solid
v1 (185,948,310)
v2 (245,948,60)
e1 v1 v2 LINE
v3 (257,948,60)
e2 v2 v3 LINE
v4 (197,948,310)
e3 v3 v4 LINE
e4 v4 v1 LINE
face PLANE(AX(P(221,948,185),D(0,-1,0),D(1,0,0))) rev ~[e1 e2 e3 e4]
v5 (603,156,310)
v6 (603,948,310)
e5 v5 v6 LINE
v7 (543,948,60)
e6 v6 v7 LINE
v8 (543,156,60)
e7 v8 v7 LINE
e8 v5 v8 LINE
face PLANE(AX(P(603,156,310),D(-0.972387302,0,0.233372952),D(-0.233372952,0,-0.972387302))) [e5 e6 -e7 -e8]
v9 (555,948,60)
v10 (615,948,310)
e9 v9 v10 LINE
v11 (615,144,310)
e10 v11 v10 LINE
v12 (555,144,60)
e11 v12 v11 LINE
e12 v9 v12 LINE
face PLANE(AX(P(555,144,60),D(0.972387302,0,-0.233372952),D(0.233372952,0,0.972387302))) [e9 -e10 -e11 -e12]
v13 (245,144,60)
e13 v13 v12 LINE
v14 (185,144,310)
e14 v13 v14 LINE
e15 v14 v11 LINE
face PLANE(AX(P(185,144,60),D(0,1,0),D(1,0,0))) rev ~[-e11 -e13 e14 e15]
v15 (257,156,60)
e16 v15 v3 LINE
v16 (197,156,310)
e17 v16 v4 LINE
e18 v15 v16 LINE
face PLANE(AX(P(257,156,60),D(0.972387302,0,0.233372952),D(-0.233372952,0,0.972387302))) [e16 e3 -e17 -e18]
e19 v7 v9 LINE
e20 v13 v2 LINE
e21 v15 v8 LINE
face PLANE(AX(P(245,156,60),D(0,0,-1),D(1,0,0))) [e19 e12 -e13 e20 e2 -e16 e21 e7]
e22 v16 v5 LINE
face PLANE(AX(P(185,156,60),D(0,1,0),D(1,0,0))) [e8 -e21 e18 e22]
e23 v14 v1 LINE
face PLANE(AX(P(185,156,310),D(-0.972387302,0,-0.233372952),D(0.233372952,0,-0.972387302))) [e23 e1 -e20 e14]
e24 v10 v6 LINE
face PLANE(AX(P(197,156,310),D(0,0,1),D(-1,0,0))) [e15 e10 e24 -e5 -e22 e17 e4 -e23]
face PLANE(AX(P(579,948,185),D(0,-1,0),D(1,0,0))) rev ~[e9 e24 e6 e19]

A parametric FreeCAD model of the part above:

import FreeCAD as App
import Part
import Sketcher
from FreeCAD import Vector


def add_polygon(sketch, points):
    """Adds a closed chain of lines whose ends are joined by coincident constraints."""
    first, n = sketch.GeometryCount, len(points)
    for a, b in zip(points, points[1:] + points[:1]):
        sketch.addGeometry(Part.LineSegment(App.Vector(*a, 0), App.Vector(*b, 0)), False)
    for i in range(n):
        sketch.addConstraint(Sketcher.Constraint("Coincident", first + i, 2, first + (i + 1) % n, 1))

doc = App.newDocument("Part")
body = doc.addObject("PartDesign::Body", "Body")

sketch1 = body.newObject("Sketcher::SketchObject", "Sketch")
sketch1.AttachmentSupport = (doc.getObject("XY_Plane"), [""])
sketch1.MapMode = "FlatFace"
sketch1.AttachmentOffset = App.Placement(Vector(0, 0, 60), App.Rotation())
add_polygon(sketch1, [(185, 156), (185, 144), (615, 144), (615, 156)])
sketch1.addConstraint([
    Sketcher.Constraint("Vertical", 0),
    Sketcher.Constraint("Horizontal", 1),
    Sketcher.Constraint("Vertical", 2),
    Sketcher.Constraint("Horizontal", 3),
    Sketcher.Constraint("DistanceX", 1, 1, 1, 2, 430.0),
    Sketcher.Constraint("DistanceY", 0, 2, 0, 1, 12.0),
    Sketcher.Constraint("DistanceX", -1, 1, 0, 2, 185.0),
    Sketcher.Constraint("DistanceY", -1, 1, 0, 2, 144.0),
])
pad1 = body.newObject("PartDesign::Pad", "Pad")
pad1.Profile = sketch1
pad1.Length = 250

sketch2 = body.newObject("Sketcher::SketchObject", "Sketch001")
sketch2.AttachmentSupport = (doc.getObject("XZ_Plane"), [""])
sketch2.MapMode = "FlatFace"
sketch2.AttachmentOffset = App.Placement(Vector(0, 0, -144), App.Rotation())
add_polygon(sketch2, [(185, 310), (185, 60), (245, 60)])
add_polygon(sketch2, [(615, 60), (615, 310), (555, 60)])
sketch2.addConstraint([
    Sketcher.Constraint("Vertical", 0),
    Sketcher.Constraint("Horizontal", 1),
    Sketcher.Constraint("Vertical", 3),
    Sketcher.Constraint("Horizontal", 5),
    Sketcher.Constraint("Horizontal", 2, 2, 3, 2),
    Sketcher.Constraint("Horizontal", 1, 2, 4, 2),
    Sketcher.Constraint("Equal", 1, 5),
    Sketcher.Constraint("DistanceX", 1, 1, 1, 2, 60.0),
    Sketcher.Constraint("DistanceY", 0, 2, 0, 1, 250.0),
    Sketcher.Constraint("DistanceX", -1, 1, 0, 2, 185.0),
    Sketcher.Constraint("DistanceY", -1, 1, 0, 2, 60.0),
    Sketcher.Constraint("DistanceX", -1, 1, 3, 2, 615.0),
])
pocket1 = body.newObject("PartDesign::Pocket", "Pocket")
pocket1.Profile = sketch2
pocket1.Length = 12

sketch3 = body.newObject("Sketcher::SketchObject", "Sketch002")
sketch3.AttachmentSupport = (doc.getObject("XZ_Plane"), [""])
sketch3.MapMode = "FlatFace"
sketch3.AttachmentOffset = App.Placement(Vector(0, 0, -156), App.Rotation())
add_polygon(sketch3, [(257, 60), (245, 60), (185, 310), (197, 310)])
add_polygon(sketch3, [(615, 310), (555, 60), (543, 60), (603, 310)])
sketch3.addConstraint([
    Sketcher.Constraint("Horizontal", 0),
    Sketcher.Constraint("Horizontal", 2),
    Sketcher.Constraint("Horizontal", 5),
    Sketcher.Constraint("Horizontal", 7),
    Sketcher.Constraint("Parallel", 1, 3),
    Sketcher.Constraint("Parallel", 4, 6),
    Sketcher.Constraint("Horizontal", 3, 2, 4, 2),
    Sketcher.Constraint("Horizontal", 2, 2, 6, 2),
    Sketcher.Constraint("Equal", 2, 5),
    Sketcher.Constraint("Equal", 3, 4),
    Sketcher.Constraint("DistanceX", 0, 2, 0, 1, 12.0),
    Sketcher.Constraint("DistanceX", -1, 1, 0, 2, 245.0),
    Sketcher.Constraint("DistanceY", -1, 1, 0, 2, 60.0),
    Sketcher.Constraint("DistanceX", -1, 1, 1, 2, 185.0),
    Sketcher.Constraint("DistanceY", -1, 1, 1, 2, 310.0),
    Sketcher.Constraint("DistanceX", -1, 1, 4, 2, 555.0),
])
pad2 = body.newObject("PartDesign::Pad", "Pad001")
pad2.Profile = sketch3
pad2.Length = 792
pad2.Reversed = True

doc.recompute()
